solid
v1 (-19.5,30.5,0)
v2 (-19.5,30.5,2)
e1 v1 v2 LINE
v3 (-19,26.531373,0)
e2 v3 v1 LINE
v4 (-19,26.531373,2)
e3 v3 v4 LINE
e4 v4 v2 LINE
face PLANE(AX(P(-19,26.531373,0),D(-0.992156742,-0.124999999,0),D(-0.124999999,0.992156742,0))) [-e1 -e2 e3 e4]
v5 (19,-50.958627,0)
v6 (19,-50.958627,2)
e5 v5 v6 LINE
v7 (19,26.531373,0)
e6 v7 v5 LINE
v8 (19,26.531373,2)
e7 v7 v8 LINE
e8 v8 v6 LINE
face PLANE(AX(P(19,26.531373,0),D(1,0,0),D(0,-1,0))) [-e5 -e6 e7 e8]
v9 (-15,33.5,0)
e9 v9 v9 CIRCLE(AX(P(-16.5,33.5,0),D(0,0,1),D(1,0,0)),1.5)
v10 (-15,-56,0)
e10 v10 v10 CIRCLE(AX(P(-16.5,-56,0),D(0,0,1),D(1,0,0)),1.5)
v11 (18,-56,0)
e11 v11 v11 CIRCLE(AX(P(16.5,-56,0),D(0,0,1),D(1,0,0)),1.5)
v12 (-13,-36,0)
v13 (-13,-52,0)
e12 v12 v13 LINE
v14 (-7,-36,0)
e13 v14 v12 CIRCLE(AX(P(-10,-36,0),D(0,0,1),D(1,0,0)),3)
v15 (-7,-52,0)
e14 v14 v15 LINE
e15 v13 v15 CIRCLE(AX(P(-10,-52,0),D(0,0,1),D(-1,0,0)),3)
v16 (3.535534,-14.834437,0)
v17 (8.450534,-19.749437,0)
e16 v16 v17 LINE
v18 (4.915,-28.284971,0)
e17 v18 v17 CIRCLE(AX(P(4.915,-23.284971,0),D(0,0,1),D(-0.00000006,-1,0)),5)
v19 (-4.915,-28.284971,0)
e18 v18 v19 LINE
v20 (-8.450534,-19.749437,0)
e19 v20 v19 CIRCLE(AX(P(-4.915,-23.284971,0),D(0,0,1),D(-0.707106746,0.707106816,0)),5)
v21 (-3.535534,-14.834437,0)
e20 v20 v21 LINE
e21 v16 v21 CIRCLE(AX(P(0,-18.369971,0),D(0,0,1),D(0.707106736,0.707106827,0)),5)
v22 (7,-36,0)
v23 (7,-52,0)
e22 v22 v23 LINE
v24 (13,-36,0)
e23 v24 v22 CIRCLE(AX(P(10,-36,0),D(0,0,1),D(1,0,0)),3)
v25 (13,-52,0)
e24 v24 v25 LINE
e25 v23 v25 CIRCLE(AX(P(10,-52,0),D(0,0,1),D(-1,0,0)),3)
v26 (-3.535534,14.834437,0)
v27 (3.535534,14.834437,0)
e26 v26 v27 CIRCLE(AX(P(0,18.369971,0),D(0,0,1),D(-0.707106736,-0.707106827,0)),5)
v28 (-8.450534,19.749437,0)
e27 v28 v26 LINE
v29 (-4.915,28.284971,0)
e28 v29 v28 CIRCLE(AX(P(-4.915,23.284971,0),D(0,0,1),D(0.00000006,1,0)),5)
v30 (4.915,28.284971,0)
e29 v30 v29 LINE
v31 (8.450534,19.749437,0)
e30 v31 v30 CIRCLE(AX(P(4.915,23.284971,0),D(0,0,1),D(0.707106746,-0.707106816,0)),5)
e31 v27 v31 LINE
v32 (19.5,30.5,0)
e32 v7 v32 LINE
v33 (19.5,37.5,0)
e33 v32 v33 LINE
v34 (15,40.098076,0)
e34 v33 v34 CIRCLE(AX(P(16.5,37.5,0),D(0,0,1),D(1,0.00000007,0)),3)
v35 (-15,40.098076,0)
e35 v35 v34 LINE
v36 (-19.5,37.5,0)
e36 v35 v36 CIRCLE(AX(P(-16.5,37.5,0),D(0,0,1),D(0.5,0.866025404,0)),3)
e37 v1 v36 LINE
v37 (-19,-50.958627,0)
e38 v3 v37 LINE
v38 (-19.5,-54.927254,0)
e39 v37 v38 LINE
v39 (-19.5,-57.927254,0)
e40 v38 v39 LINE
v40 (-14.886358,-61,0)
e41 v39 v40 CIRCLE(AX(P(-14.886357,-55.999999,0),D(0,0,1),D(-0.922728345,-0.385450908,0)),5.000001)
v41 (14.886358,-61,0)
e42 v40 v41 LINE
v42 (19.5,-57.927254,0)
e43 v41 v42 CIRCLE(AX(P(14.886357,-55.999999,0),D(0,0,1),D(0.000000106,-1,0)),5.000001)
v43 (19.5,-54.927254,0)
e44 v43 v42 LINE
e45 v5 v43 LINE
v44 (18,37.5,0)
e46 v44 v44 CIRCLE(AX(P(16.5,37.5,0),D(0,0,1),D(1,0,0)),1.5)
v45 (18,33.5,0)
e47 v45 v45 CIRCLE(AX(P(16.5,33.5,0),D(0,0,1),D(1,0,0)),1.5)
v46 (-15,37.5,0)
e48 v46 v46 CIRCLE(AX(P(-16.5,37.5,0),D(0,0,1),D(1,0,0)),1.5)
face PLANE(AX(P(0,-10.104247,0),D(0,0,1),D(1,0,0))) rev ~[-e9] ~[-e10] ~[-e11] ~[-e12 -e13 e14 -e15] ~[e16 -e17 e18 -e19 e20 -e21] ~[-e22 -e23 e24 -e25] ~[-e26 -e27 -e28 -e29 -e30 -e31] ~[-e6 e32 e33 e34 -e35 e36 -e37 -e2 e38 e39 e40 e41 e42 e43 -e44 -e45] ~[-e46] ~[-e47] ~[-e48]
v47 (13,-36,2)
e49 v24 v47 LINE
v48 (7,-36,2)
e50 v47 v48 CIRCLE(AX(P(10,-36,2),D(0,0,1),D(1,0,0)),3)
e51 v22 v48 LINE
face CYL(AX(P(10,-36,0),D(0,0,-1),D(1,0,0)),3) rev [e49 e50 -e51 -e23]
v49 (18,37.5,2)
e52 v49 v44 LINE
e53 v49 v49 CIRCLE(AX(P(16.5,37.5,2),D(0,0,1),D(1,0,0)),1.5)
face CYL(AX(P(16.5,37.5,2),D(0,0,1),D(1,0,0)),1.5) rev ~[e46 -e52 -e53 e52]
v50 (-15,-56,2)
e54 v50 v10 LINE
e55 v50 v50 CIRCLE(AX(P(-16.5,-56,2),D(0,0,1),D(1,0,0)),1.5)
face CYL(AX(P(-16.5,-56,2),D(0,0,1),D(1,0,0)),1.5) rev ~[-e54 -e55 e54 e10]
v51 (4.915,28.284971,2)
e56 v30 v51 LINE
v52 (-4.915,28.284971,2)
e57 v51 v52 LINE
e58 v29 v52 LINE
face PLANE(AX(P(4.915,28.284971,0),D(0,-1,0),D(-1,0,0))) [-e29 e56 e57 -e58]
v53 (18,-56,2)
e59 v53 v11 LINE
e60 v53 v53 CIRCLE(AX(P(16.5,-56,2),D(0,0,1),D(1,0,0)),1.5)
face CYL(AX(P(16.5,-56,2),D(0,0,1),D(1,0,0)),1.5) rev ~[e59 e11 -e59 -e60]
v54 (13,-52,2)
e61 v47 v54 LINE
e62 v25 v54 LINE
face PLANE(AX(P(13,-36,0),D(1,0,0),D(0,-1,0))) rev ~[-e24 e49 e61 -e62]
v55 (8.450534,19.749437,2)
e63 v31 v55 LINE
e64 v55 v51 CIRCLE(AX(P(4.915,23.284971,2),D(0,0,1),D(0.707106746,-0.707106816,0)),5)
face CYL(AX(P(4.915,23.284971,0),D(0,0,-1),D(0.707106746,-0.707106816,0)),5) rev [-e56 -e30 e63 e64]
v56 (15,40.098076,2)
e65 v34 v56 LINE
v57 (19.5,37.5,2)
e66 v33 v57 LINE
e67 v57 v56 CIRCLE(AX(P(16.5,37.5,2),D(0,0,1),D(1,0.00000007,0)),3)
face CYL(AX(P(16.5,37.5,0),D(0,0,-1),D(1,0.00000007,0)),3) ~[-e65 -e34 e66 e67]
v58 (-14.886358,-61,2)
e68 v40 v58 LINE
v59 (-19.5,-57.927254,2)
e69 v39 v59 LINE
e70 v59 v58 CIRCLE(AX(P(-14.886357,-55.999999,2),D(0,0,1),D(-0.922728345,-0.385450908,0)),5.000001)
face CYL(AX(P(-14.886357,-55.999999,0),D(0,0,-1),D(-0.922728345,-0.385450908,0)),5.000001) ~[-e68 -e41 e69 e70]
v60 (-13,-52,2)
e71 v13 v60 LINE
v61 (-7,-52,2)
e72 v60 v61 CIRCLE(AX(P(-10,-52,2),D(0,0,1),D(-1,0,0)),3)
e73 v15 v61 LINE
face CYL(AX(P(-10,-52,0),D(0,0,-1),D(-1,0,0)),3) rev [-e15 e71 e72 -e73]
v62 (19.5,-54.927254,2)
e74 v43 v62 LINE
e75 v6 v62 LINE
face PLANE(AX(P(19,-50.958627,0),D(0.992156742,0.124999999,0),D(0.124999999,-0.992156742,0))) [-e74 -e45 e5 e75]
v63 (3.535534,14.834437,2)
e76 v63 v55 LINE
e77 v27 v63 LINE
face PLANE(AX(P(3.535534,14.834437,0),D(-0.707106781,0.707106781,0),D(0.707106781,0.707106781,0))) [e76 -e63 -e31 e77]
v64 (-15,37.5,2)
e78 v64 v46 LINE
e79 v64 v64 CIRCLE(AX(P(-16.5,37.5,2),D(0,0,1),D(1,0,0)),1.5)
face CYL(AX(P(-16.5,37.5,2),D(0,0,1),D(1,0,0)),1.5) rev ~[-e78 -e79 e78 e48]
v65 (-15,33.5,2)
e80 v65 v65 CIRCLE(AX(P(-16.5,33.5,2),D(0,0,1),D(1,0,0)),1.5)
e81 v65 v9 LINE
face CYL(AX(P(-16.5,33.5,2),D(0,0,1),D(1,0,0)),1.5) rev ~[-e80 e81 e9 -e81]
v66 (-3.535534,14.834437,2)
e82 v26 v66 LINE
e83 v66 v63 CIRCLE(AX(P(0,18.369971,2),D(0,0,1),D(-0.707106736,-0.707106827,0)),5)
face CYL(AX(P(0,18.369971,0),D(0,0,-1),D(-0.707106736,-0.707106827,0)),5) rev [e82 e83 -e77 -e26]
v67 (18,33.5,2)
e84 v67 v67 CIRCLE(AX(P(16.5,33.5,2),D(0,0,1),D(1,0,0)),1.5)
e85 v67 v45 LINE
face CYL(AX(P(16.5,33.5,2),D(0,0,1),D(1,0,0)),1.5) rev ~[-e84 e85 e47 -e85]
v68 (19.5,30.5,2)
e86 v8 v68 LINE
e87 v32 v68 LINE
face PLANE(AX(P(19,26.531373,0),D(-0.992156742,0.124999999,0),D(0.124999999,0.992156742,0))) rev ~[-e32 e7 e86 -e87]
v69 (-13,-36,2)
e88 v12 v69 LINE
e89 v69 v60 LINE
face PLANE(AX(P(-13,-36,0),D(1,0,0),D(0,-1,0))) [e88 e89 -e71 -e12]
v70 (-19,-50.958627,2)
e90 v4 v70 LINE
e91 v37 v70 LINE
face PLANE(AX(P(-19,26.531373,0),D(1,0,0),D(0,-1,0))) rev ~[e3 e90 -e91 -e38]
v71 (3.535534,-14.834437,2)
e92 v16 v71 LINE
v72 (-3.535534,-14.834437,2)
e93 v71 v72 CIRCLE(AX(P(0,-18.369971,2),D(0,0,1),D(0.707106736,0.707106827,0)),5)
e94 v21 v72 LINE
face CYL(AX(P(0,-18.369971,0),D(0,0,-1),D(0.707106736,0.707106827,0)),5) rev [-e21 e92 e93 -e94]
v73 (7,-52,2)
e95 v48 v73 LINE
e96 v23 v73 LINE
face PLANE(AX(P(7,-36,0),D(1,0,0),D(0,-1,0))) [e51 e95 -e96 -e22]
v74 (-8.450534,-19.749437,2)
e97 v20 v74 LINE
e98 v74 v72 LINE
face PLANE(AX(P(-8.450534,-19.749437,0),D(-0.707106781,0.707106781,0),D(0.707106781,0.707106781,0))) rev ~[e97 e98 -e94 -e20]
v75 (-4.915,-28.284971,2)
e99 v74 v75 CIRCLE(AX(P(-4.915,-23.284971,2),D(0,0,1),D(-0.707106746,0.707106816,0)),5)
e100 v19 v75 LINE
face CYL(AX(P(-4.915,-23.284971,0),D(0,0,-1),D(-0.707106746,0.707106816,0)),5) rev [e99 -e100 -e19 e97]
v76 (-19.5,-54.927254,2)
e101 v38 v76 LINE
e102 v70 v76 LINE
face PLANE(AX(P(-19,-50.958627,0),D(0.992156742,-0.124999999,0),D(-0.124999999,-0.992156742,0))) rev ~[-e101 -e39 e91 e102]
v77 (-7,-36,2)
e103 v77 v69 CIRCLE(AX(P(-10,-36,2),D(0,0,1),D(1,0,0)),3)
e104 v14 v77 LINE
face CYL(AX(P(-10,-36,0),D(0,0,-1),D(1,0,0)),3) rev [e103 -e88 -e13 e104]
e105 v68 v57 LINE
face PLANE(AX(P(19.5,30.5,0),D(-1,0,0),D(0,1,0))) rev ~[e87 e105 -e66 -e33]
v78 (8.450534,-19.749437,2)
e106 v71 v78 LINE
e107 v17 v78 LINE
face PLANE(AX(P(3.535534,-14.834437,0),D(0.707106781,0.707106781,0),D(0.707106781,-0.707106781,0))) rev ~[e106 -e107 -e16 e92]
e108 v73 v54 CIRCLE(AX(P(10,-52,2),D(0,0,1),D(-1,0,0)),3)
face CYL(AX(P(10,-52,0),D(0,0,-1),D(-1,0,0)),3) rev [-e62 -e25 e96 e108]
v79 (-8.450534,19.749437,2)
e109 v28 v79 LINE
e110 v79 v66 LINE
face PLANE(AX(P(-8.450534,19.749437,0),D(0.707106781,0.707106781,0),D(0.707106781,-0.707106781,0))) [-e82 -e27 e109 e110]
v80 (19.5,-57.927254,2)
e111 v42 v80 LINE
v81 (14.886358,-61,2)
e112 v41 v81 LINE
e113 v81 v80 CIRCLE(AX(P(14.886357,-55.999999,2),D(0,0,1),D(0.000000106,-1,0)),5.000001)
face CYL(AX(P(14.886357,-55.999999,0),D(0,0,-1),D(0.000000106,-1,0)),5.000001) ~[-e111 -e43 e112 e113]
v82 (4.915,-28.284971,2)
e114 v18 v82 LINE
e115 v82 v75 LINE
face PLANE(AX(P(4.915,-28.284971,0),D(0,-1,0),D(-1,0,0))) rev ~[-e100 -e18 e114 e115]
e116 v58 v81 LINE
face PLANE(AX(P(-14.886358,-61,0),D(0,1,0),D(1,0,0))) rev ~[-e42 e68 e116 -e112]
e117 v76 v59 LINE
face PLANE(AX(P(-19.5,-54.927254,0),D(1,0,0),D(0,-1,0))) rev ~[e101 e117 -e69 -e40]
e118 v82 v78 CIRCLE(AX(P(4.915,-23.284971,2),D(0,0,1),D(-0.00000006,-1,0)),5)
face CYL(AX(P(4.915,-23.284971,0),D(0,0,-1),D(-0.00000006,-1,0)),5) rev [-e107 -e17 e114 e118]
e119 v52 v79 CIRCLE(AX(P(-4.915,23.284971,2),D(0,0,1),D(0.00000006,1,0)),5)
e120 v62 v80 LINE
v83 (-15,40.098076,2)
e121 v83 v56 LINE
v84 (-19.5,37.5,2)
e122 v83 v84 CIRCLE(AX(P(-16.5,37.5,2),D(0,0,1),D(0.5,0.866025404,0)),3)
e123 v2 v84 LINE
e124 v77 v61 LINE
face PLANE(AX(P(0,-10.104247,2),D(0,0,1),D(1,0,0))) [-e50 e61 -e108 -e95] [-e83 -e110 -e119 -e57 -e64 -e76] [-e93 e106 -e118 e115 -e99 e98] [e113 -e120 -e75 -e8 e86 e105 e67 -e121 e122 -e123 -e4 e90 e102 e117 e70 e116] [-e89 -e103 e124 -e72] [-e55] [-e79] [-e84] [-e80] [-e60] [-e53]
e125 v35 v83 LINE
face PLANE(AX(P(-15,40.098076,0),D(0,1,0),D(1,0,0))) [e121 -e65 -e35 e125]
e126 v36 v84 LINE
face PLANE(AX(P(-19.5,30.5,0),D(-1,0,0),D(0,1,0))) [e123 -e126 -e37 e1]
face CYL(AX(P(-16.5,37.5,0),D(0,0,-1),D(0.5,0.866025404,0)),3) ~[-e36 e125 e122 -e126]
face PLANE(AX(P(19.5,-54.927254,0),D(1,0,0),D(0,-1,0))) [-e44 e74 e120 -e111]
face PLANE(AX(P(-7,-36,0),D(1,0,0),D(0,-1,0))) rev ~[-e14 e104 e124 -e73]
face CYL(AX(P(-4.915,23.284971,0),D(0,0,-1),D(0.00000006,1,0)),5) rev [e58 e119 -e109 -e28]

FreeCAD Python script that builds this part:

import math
import FreeCAD as App
import Part
import Sketcher

doc = App.newDocument("Part")
body = doc.addObject("PartDesign::Body", "Body")

# Sketch on XY plane
sketch1 = body.newObject("Sketcher::SketchObject", "Sketch")
sketch1.AttachmentSupport = (doc.getObject("XY_Plane"), [""])
sketch1.MapMode = "FlatFace"
sketch1.addGeometry(Part.LineSegment(App.Vector(-14.9, -61, 0), App.Vector(14.9, -61, 0)), False)
sketch1.addGeometry(Part.ArcOfCircle(Part.Circle(App.Vector(14.9, -56, 0), App.Vector(0, 0, 1), 5), math.radians(-90), math.radians(-23)), False)
sketch1.addGeometry(Part.LineSegment(App.Vector(19.5, -57.9, 0), App.Vector(19.5, -54.9, 0)), False)
sketch1.addGeometry(Part.LineSegment(App.Vector(19.5, -54.9, 0), App.Vector(19, -51, 0)), False)
sketch1.addGeometry(Part.LineSegment(App.Vector(19, -51, 0), App.Vector(19, 26.5, 0)), False)
sketch1.addGeometry(Part.LineSegment(App.Vector(19, 26.5, 0), App.Vector(19.5, 30.5, 0)), False)
sketch1.addGeometry(Part.LineSegment(App.Vector(19.5, 30.5, 0), App.Vector(19.5, 37.5, 0)), False)
sketch1.addGeometry(Part.ArcOfCircle(Part.Circle(App.Vector(16.5, 37.5, 0), App.Vector(0, 0, 1), 3), math.radians(0), math.radians(120)), False)
sketch1.addGeometry(Part.LineSegment(App.Vector(15, 40.1, 0), App.Vector(-15, 40.1, 0)), False)
sketch1.addGeometry(Part.ArcOfCircle(Part.Circle(App.Vector(-16.5, 37.5, 0), App.Vector(0, 0, 1), 3), math.radians(60), math.radians(180)), False)
sketch1.addGeometry(Part.LineSegment(App.Vector(-19.5, 37.5, 0), App.Vector(-19.5, 30.5, 0)), False)
sketch1.addGeometry(Part.LineSegment(App.Vector(-19.5, 30.5, 0), App.Vector(-19, 26.5, 0)), False)
sketch1.addGeometry(Part.LineSegment(App.Vector(-19, 26.5, 0), App.Vector(-19, -51, 0)), False)
sketch1.addGeometry(Part.LineSegment(App.Vector(-19, -51, 0), App.Vector(-19.5, -54.9, 0)), False)
sketch1.addGeometry(Part.LineSegment(App.Vector(-19.5, -54.9, 0), App.Vector(-19.5, -57.9, 0)), False)
sketch1.addGeometry(Part.ArcOfCircle(Part.Circle(App.Vector(-14.9, -56, 0), App.Vector(0, 0, 1), 5), math.radians(-157), math.radians(-90)), False)
sketch1.addGeometry(Part.ArcOfCircle(Part.Circle(App.Vector(-10, -36, 0), App.Vector(0, 0, 1), 3), math.radians(0), math.radians(180)), False)
sketch1.addGeometry(Part.LineSegment(App.Vector(-7, -36, 0), App.Vector(-7, -52, 0)), False)
sketch1.addGeometry(Part.ArcOfCircle(Part.Circle(App.Vector(-10, -52, 0), App.Vector(0, 0, 1), 3), math.radians(180), math.radians(360)), False)
sketch1.addGeometry(Part.LineSegment(App.Vector(-13, -52, 0), App.Vector(-13, -36, 0)), False)
sketch1.addGeometry(Part.ArcOfCircle(Part.Circle(App.Vector(10, -36, 0), App.Vector(0, 0, 1), 3), math.radians(0), math.radians(180)), False)
sketch1.addGeometry(Part.LineSegment(App.Vector(13, -36, 0), App.Vector(13, -52, 0)), False)
sketch1.addGeometry(Part.ArcOfCircle(Part.Circle(App.Vector(10, -52, 0), App.Vector(0, 0, 1), 3), math.radians(180), math.radians(360)), False)
sketch1.addGeometry(Part.LineSegment(App.Vector(7, -52, 0), App.Vector(7, -36, 0)), False)
sketch1.addGeometry(Part.ArcOfCircle(Part.Circle(App.Vector(0, -18.4, 0), App.Vector(0, 0, 1), 5), math.radians(45), math.radians(135)), False)
sketch1.addGeometry(Part.LineSegment(App.Vector(3.5, -14.8, 0), App.Vector(8.5, -19.7, 0)), False)
sketch1.addGeometry(Part.ArcOfCircle(Part.Circle(App.Vector(4.9, -23.3, 0), App.Vector(0, 0, 1), 5), math.radians(-90), math.radians(45)), False)
sketch1.addGeometry(Part.LineSegment(App.Vector(4.9, -28.3, 0), App.Vector(-4.9, -28.3, 0)), False)
sketch1.addGeometry(Part.ArcOfCircle(Part.Circle(App.Vector(-4.9, -23.3, 0), App.Vector(0, 0, 1), 5), math.radians(135), math.radians(270)), False)
sketch1.addGeometry(Part.LineSegment(App.Vector(-8.5, -19.7, 0), App.Vector(-3.5, -14.8, 0)), False)
sketch1.addGeometry(Part.LineSegment(App.Vector(-3.5, 14.8, 0), App.Vector(-8.5, 19.7, 0)), False)
sketch1.addGeometry(Part.ArcOfCircle(Part.Circle(App.Vector(-4.9, 23.3, 0), App.Vector(0, 0, 1), 5), math.radians(90), math.radians(225)), False)
sketch1.addGeometry(Part.LineSegment(App.Vector(-4.9, 28.3, 0), App.Vector(4.9, 28.3, 0)), False)
sketch1.addGeometry(Part.ArcOfCircle(Part.Circle(App.Vector(4.9, 23.3, 0), App.Vector(0, 0, 1), 5), math.radians(-45), math.radians(90)), False)
sketch1.addGeometry(Part.LineSegment(App.Vector(8.5, 19.7, 0), App.Vector(3.5, 14.8, 0)), False)
sketch1.addGeometry(Part.ArcOfCircle(Part.Circle(App.Vector(0, 18.4, 0), App.Vector(0, 0, 1), 5), math.radians(-135), math.radians(-45)), False)
sketch1.addConstraint(Sketcher.Constraint("Tangent", 0, 2, 1, 1))
sketch1.addConstraint(Sketcher.Constraint("Coincident", 1, 2, 2, 1))
sketch1.addConstraint(Sketcher.Constraint("Coincident", 2, 2, 3, 1))
sketch1.addConstraint(Sketcher.Constraint("Coincident", 3, 2, 4, 1))
sketch1.addConstraint(Sketcher.Constraint("Coincident", 4, 2, 5, 1))
sketch1.addConstraint(Sketcher.Constraint("Coincident", 5, 2, 6, 1))
sketch1.addConstraint(Sketcher.Constraint("Tangent", 6, 2, 7, 1))
sketch1.addConstraint(Sketcher.Constraint("Coincident", 7, 2, 8, 1))
sketch1.addConstraint(Sketcher.Constraint("Coincident", 8, 2, 9, 1))
sketch1.addConstraint(Sketcher.Constraint("Tangent", 9, 2, 10, 1))
sketch1.addConstraint(Sketcher.Constraint("Coincident", 10, 2, 11, 1))
sketch1.addConstraint(Sketcher.Constraint("Coincident", 11, 2, 12, 1))
sketch1.addConstraint(Sketcher.Constraint("Coincident", 12, 2, 13, 1))
sketch1.addConstraint(Sketcher.Constraint("Coincident", 13, 2, 14, 1))
sketch1.addConstraint(Sketcher.Constraint("Coincident", 14, 2, 15, 1))
sketch1.addConstraint(Sketcher.Constraint("Tangent", 15, 2, 0, 1))
sketch1.addConstraint(Sketcher.Constraint("Tangent", 16, 1, 17, 1))
sketch1.addConstraint(Sketcher.Constraint("Tangent", 17, 2, 18, 2))
sketch1.addConstraint(Sketcher.Constraint("Tangent", 18, 1, 19, 1))
sketch1.addConstraint(Sketcher.Constraint("Tangent", 19, 2, 16, 2))
sketch1.addConstraint(Sketcher.Constraint("Tangent", 20, 1, 21, 1))
sketch1.addConstraint(Sketcher.Constraint("Tangent", 21, 2, 22, 2))
sketch1.addConstraint(Sketcher.Constraint("Tangent", 22, 1, 23, 1))
sketch1.addConstraint(Sketcher.Constraint("Tangent", 23, 2, 20, 2))
sketch1.addConstraint(Sketcher.Constraint("Tangent", 24, 1, 25, 1))
sketch1.addConstraint(Sketcher.Constraint("Tangent", 25, 2, 26, 2))
sketch1.addConstraint(Sketcher.Constraint("Tangent", 26, 1, 27, 1))
sketch1.addConstraint(Sketcher.Constraint("Tangent", 27, 2, 28, 2))
sketch1.addConstraint(Sketcher.Constraint("Tangent", 28, 1, 29, 1))
sketch1.addConstraint(Sketcher.Constraint("Tangent", 29, 2, 24, 2))
sketch1.addConstraint(Sketcher.Constraint("Tangent", 30, 2, 31, 2))
sketch1.addConstraint(Sketcher.Constraint("Tangent", 31, 1, 32, 1))
sketch1.addConstraint(Sketcher.Constraint("Tangent", 32, 2, 33, 2))
sketch1.addConstraint(Sketcher.Constraint("Tangent", 33, 1, 34, 1))
sketch1.addConstraint(Sketcher.Constraint("Tangent", 34, 2, 35, 2))
sketch1.addConstraint(Sketcher.Constraint("Tangent", 35, 1, 30, 1))
sketch1.addConstraint(Sketcher.Constraint("Horizontal", 0))
sketch1.addConstraint(Sketcher.Constraint("Vertical", 2))
sketch1.addConstraint(Sketcher.Constraint("Vertical", 4))
sketch1.addConstraint(Sketcher.Constraint("Vertical", 6))
sketch1.addConstraint(Sketcher.Constraint("Horizontal", 8))
sketch1.addConstraint(Sketcher.Constraint("Vertical", 10))
sketch1.addConstraint(Sketcher.Constraint("Vertical", 12))
sketch1.addConstraint(Sketcher.Constraint("Vertical", 14))
sketch1.addConstraint(Sketcher.Constraint("Vertical", 17))
sketch1.addConstraint(Sketcher.Constraint("Vertical", 19))
sketch1.addConstraint(Sketcher.Constraint("Vertical", 21))
sketch1.addConstraint(Sketcher.Constraint("Vertical", 23))
sketch1.addConstraint(Sketcher.Constraint("Horizontal", 27))
sketch1.addConstraint(Sketcher.Constraint("Horizontal", 32))
sketch1.addConstraint(Sketcher.Constraint("Equal", 7, 9))
sketch1.addConstraint(Sketcher.Constraint("Equal", 1, 15))
sketch1.addConstraint(Sketcher.Constraint("Equal", 9, 16))
sketch1.addConstraint(Sketcher.Constraint("Equal", 18, 20))
sketch1.addConstraint(Sketcher.Constraint("Equal", 15, 24))
sketch1.addConstraint(Sketcher.Constraint("Equal", 24, 26))
sketch1.addConstraint(Sketcher.Constraint("Equal", 26, 28))
sketch1.addConstraint(Sketcher.Constraint("Equal", 28, 31))
sketch1.addConstraint(Sketcher.Constraint("Equal", 31, 33))
sketch1.addConstraint(Sketcher.Constraint("Equal", 33, 35))
sketch1.addConstraint(Sketcher.Constraint("Symmetric", 26, 3, 31, 3, -1, 1))
sketch1.addConstraint(Sketcher.Constraint("Symmetric", 24, 3, 35, 3, -1, 1))
sketch1.addConstraint(Sketcher.Constraint("Symmetric", 7, 3, 9, 3, -2))
sketch1.addConstraint(Sketcher.Constraint("Symmetric", 16, 3, 20, 3, -2))
sketch1.addConstraint(Sketcher.Constraint("Symmetric", 4, 2, 11, 2, -2))
sketch1.addConstraint(Sketcher.Constraint("Symmetric", 2, 2, 13, 2, -2))
sketch1.addConstraint(Sketcher.Constraint("Symmetric", 25, 2, 28, 1, -2))
sketch1.addConstraint(Sketcher.Constraint("Parallel", 3, 11))
sketch1.addConstraint(Sketcher.Constraint("Parallel", 5, 13))
sketch1.addConstraint(Sketcher.Constraint("Perpendicular", 25, 29))
sketch1.addConstraint(Sketcher.Constraint("Perpendicular", 30, 34))
sketch1.addConstraint(Sketcher.Constraint("Horizontal", 18, 3, 22, 3))
sketch1.addConstraint(Sketcher.Constraint("Horizontal", 5, 2, 10, 2))
sketch1.addConstraint(Sketcher.Constraint("Horizontal", 1, 2, 14, 2))
sketch1.addConstraint(Sketcher.Constraint("Vertical", 2, 2, 5, 2))
sketch1.addConstraint(Sketcher.Constraint("Radius", 1, 5.000001))
sketch1.addConstraint(Sketcher.Constraint("Radius", 7, 3.0))
sketch1.addConstraint(Sketcher.Constraint("DistanceX", 8, 2, 8, 1, 30.0))
sketch1.addConstraint(Sketcher.Constraint("DistanceY", 2, 1, 2, 2, 3.0))
sketch1.addConstraint(Sketcher.Constraint("DistanceY", 6, 1, 6, 2, 7.0))
sketch1.addConstraint(Sketcher.Constraint("DistanceY", 17, 2, 17, 1, 16.0))
sketch1.addConstraint(Sketcher.Constraint("Distance", 3, 4.0))
sketch1.addConstraint(Sketcher.Constraint("DistanceY", 1, 3, -1, 1, 55.999999))
sketch1.addConstraint(Sketcher.Constraint("DistanceX", 16, 3, -1, 1, 10.0))
sketch1.addConstraint(Sketcher.Constraint("DistanceY", 16, 3, -1, 1, 36.0))
sketch1.addConstraint(Sketcher.Constraint("DistanceX", -1, 1, 3, 2, 19.0))
sketch1.addConstraint(Sketcher.Constraint("DistanceX", 9, 3, 7, 3, 33.0))
sketch1.addConstraint(Sketcher.Constraint("DistanceX", 27, 2, 27, 1, 9.83))
sketch1.addConstraint(Sketcher.Constraint("DistanceY", 4, 1, 4, 2, 77.49))
sketch1.addConstraint(Sketcher.Constraint("DistanceY", -1, 1, 7, 3, 37.5))
sketch1.addConstraint(Sketcher.Constraint("DistanceY", 33, 3, 4, 2, 3.246402))
pad1 = body.newObject("PartDesign::Pad", "Pad")
pad1.Profile = sketch1
pad1.Length = 2

# Sketch on XY plane
sketch2 = body.newObject("Sketcher::SketchObject", "Sketch001")
sketch2.AttachmentSupport = (doc.getObject("XY_Plane"), [""])
sketch2.MapMode = "FlatFace"
sketch2.AttachmentOffset = App.Placement(App.Vector(0, 0, 2), App.Rotation())
sketch2.addGeometry(Part.Circle(App.Vector(-16.5, 33.5, 0), App.Vector(0, 0, 1), 1.5), False)
sketch2.addGeometry(Part.Circle(App.Vector(16.5, 33.5, 0), App.Vector(0, 0, 1), 1.5), False)
sketch2.addGeometry(Part.Circle(App.Vector(16.5, -56, 0), App.Vector(0, 0, 1), 1.5), False)
sketch2.addGeometry(Part.Circle(App.Vector(-16.5, -56, 0), App.Vector(0, 0, 1), 1.5), False)
sketch2.addGeometry(Part.Circle(App.Vector(16.5, 37.5, 0), App.Vector(0, 0, 1), 1.5), False)
sketch2.addGeometry(Part.Circle(App.Vector(-16.5, 37.5, 0), App.Vector(0, 0, 1), 1.5), False)
sketch2.addConstraint(Sketcher.Constraint("Equal", 0, 1))
sketch2.addConstraint(Sketcher.Constraint("Equal", 1, 2))
sketch2.addConstraint(Sketcher.Constraint("Equal", 2, 3))
sketch2.addConstraint(Sketcher.Constraint("Equal", 3, 4))
sketch2.addConstraint(Sketcher.Constraint("Equal", 4, 5))
sketch2.addConstraint(Sketcher.Constraint("Symmetric", 0, 3, 1, 3, -2))
sketch2.addConstraint(Sketcher.Constraint("Symmetric", 2, 3, 3, 3, -2))
sketch2.addConstraint(Sketcher.Constraint("Symmetric", 4, 3, 5, 3, -2))
sketch2.addConstraint(Sketcher.Constraint("Vertical", 1, 3, 2, 3))
sketch2.addConstraint(Sketcher.Constraint("Vertical", 2, 3, 4, 3))
sketch2.addConstraint(Sketcher.Constraint("Diameter", 0, 3.0))
sketch2.addConstraint(Sketcher.Constraint("DistanceY", 2, 3, -1, 1, 56.0))
sketch2.addConstraint(Sketcher.Constraint("DistanceX", 0, 3, 1, 3, 33.0))
sketch2.addConstraint(Sketcher.Constraint("DistanceY", 1, 3, 4, 3, 4.0))
sketch2.addConstraint(Sketcher.Constraint("DistanceY", -1, 1, 0, 3, 33.5))
pocket1 = body.newObject("PartDesign::Pocket", "Pocket")
pocket1.Profile = sketch2
pocket1.Type = "ThroughAll"

doc.recompute()
